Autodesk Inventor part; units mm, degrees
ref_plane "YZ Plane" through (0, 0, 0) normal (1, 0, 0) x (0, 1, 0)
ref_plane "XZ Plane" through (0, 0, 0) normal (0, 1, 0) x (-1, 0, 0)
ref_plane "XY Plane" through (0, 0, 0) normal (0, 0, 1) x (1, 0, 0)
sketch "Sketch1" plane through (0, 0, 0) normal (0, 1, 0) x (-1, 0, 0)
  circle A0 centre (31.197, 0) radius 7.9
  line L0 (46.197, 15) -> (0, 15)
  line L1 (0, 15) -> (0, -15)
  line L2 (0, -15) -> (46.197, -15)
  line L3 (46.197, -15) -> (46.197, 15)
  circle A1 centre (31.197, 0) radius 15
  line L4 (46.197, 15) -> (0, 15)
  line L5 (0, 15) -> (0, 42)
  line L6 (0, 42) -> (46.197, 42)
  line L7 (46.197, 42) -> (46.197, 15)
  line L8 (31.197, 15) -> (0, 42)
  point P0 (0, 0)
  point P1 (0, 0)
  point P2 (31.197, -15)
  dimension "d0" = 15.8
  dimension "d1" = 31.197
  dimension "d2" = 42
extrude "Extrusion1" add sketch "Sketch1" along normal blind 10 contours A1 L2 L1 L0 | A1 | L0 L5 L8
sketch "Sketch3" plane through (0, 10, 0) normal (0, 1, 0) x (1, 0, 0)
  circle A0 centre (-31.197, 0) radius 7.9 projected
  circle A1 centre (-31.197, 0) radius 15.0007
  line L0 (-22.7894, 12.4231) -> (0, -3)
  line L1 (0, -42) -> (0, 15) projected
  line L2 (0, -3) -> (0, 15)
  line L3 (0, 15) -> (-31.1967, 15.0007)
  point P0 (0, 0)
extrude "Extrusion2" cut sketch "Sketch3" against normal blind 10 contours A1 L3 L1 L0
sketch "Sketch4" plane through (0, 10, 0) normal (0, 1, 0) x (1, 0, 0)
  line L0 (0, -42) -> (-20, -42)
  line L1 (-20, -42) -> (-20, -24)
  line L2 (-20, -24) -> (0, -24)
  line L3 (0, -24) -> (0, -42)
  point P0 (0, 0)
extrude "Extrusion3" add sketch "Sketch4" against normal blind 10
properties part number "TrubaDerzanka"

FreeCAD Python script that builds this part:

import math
import FreeCAD as App
import Part
import Sketcher
Q = App.Units.Quantity

doc = App.newDocument("Part")
params = doc.addObject("Spreadsheet::Sheet", "Params")
for row, (alias, value) in enumerate([
    ("sketch1_diameter", "15.8 mm"),
    ("sketch1_radius", "15 mm"),
    ("pad1_length", "10 mm"),
    ("sketch2_height", "18 mm"),
    ("pocket1_length", "10 mm"),
    ("sketch3_width", "20 mm"),
    ("sketch3_height", "18 mm"),
    ("pad2_length", "10 mm"),
], start=1):
    params.set(f"A{row}", alias)
    params.set(f"B{row}", "=" + value)
    params.setAlias(f"B{row}", alias)

body = doc.addObject("PartDesign::Body", "Body")

# Sketch on XZ plane
sketch1 = body.newObject("Sketcher::SketchObject", "Sketch")
sketch1.AttachmentSupport = (doc.getObject("XZ_Plane"), [""])
sketch1.MapMode = "FlatFace"
sketch1.addGeometry(Part.LineSegment(App.Vector(0, -15, 0), App.Vector(-31, -15, 0)), False)
sketch1.addGeometry(Part.ArcOfCircle(Part.Circle(App.Vector(-31, 0, 0), App.Vector(0, 0, 1), 15), math.radians(90), math.radians(270)), False)
sketch1.addGeometry(Part.LineSegment(App.Vector(-31, 15, 0), App.Vector(0, 42, 0)), False)
sketch1.addGeometry(Part.LineSegment(App.Vector(0, 42, 0), App.Vector(0, -15, 0)), False)
sketch1.addGeometry(Part.Circle(App.Vector(-31, 0, 0), App.Vector(0, 0, 1), 8), False)
sketch1.addConstraint(Sketcher.Constraint("Tangent", 0, 2, 1, 2))
sketch1.addConstraint(Sketcher.Constraint("Coincident", 1, 1, 2, 1))
sketch1.addConstraint(Sketcher.Constraint("Coincident", 2, 2, 3, 1))
sketch1.addConstraint(Sketcher.Constraint("Coincident", 3, 2, 0, 1))
sketch1.addConstraint(Sketcher.Constraint("Horizontal", 0))
sketch1.addConstraint(Sketcher.Constraint("Vertical", 3))
sketch1.addConstraint(Sketcher.Constraint("Coincident", 4, 3, 1, 3))
sketch1.addConstraint(Sketcher.Constraint("Symmetric", 0, 2, 1, 1, -1))
sketch1.addConstraint(Sketcher.Constraint("PointOnObject", 2, 2, -2))
sketch1.addConstraint(Sketcher.Constraint("Diameter", 4, 15.8))
sketch1.addConstraint(Sketcher.Constraint("DistanceY", -1, 1, 2, 2, 42.0))
sketch1.addConstraint(Sketcher.Constraint("Radius", 1, 15.0))
sketch1.addConstraint(Sketcher.Constraint("DistanceX", 0, 2, 0, 1, 31.197))
sketch1.setExpression("Constraints[9]", "Params.sketch1_diameter")
sketch1.setExpression("Constraints[11]", "Params.sketch1_radius")
pad1 = body.newObject("PartDesign::Pad", "Pad")
pad1.Profile = sketch1
pad1.setExpression("Length", "Params.pad1_length")
pad1.Reversed = True

# Sketch on XZ plane
sketch2 = body.newObject("Sketcher::SketchObject", "Sketch001")
sketch2.AttachmentSupport = (doc.getObject("XZ_Plane"), [""])
sketch2.MapMode = "FlatFace"
sketch2.AttachmentOffset = App.Placement(App.Vector(0, 0, -10), App.Rotation())
sketch2.addGeometry(Part.ArcOfCircle(Part.Circle(App.Vector(-31, 0, 0), App.Vector(0, 0, 1), 15), math.radians(-90), math.radians(-56)), False)
sketch2.addGeometry(Part.LineSegment(App.Vector(-23, -12, 0), App.Vector(0, 3, 0)), False)
sketch2.addGeometry(Part.LineSegment(App.Vector(0, 3, 0), App.Vector(0, -15, 0)), False)
sketch2.addGeometry(Part.LineSegment(App.Vector(0, -15, 0), App.Vector(-31, -15, 0)), False)
sketch2.addConstraint(Sketcher.Constraint("Tangent", 0, 2, 1, 1))
sketch2.addConstraint(Sketcher.Constraint("Coincident", 1, 2, 2, 1))
sketch2.addConstraint(Sketcher.Constraint("Coincident", 2, 2, 3, 1))
sketch2.addConstraint(Sketcher.Constraint("Tangent", 3, 2, 0, 1))
sketch2.addConstraint(Sketcher.Constraint("Vertical", 2))
sketch2.addConstraint(Sketcher.Constraint("PointOnObject", 0, 3, -1))
sketch2.addConstraint(Sketcher.Constraint("PointOnObject", 1, 2, -2))
sketch2.addConstraint(Sketcher.Constraint("DistanceY", 2, 2, 2, 1, 18.0))
sketch2.addConstraint(Sketcher.Constraint("DistanceY", -1, 1, 1, 2, 3.0))
sketch2.addConstraint(Sketcher.Constraint("Angle", 1, Q("34.0888 deg")))
sketch2.addConstraint(Sketcher.Constraint("Radius", 0, 15.0007))
sketch2.setExpression("Constraints[7]", "Params.sketch2_height")
pocket1 = body.newObject("PartDesign::Pocket", "Pocket")
pocket1.Profile = sketch2
pocket1.setExpression("Length", "Params.pocket1_length")
pocket1.Reversed = True

# Sketch on XZ plane
sketch3 = body.newObject("Sketcher::SketchObject", "Sketch002")
sketch3.AttachmentSupport = (doc.getObject("XZ_Plane"), [""])
sketch3.MapMode = "FlatFace"
sketch3.AttachmentOffset = App.Placement(App.Vector(0, 0, -10), App.Rotation())
sketch3.addGeometry(Part.LineSegment(App.Vector(-20, 42, 0), App.Vector(0, 42, 0)), False)
sketch3.addGeometry(Part.LineSegment(App.Vector(0, 42, 0), App.Vector(0, 24, 0)), False)
sketch3.addGeometry(Part.LineSegment(App.Vector(0, 24, 0), App.Vector(-20, 24, 0)), False)
sketch3.addGeometry(Part.LineSegment(App.Vector(-20, 24, 0), App.Vector(-20, 42, 0)), False)
sketch3.addConstraint(Sketcher.Constraint("Coincident", 0, 2, 1, 1))
sketch3.addConstraint(Sketcher.Constraint("Coincident", 1, 2, 2, 1))
sketch3.addConstraint(Sketcher.Constraint("Coincident", 2, 2, 3, 1))
sketch3.addConstraint(Sketcher.Constraint("Coincident", 3, 2, 0, 1))
sketch3.addConstraint(Sketcher.Constraint("Horizontal", 0))
sketch3.addConstraint(Sketcher.Constraint("Vertical", 1))
sketch3.addConstraint(Sketcher.Constraint("Horizontal", 2))
sketch3.addConstraint(Sketcher.Constraint("Vertical", 3))
sketch3.addConstraint(Sketcher.Constraint("PointOnObject", 0, 2, -2))
sketch3.addConstraint(Sketcher.Constraint("DistanceX", 0, 1, 0, 2, 20.0))
sketch3.addConstraint(Sketcher.Constraint("DistanceY", 1, 2, 1, 1, 18.0))
sketch3.addConstraint(Sketcher.Constraint("DistanceY", -1, 1, 0, 2, 42.0))
sketch3.setExpression("Constraints[9]", "Params.sketch3_width")
sketch3.setExpression("Constraints[10]", "Params.sketch3_height")
pad2 = body.newObject("PartDesign::Pad", "Pad001")
pad2.Profile = sketch3
pad2.setExpression("Length", "Params.pad2_length")

doc.recompute()
